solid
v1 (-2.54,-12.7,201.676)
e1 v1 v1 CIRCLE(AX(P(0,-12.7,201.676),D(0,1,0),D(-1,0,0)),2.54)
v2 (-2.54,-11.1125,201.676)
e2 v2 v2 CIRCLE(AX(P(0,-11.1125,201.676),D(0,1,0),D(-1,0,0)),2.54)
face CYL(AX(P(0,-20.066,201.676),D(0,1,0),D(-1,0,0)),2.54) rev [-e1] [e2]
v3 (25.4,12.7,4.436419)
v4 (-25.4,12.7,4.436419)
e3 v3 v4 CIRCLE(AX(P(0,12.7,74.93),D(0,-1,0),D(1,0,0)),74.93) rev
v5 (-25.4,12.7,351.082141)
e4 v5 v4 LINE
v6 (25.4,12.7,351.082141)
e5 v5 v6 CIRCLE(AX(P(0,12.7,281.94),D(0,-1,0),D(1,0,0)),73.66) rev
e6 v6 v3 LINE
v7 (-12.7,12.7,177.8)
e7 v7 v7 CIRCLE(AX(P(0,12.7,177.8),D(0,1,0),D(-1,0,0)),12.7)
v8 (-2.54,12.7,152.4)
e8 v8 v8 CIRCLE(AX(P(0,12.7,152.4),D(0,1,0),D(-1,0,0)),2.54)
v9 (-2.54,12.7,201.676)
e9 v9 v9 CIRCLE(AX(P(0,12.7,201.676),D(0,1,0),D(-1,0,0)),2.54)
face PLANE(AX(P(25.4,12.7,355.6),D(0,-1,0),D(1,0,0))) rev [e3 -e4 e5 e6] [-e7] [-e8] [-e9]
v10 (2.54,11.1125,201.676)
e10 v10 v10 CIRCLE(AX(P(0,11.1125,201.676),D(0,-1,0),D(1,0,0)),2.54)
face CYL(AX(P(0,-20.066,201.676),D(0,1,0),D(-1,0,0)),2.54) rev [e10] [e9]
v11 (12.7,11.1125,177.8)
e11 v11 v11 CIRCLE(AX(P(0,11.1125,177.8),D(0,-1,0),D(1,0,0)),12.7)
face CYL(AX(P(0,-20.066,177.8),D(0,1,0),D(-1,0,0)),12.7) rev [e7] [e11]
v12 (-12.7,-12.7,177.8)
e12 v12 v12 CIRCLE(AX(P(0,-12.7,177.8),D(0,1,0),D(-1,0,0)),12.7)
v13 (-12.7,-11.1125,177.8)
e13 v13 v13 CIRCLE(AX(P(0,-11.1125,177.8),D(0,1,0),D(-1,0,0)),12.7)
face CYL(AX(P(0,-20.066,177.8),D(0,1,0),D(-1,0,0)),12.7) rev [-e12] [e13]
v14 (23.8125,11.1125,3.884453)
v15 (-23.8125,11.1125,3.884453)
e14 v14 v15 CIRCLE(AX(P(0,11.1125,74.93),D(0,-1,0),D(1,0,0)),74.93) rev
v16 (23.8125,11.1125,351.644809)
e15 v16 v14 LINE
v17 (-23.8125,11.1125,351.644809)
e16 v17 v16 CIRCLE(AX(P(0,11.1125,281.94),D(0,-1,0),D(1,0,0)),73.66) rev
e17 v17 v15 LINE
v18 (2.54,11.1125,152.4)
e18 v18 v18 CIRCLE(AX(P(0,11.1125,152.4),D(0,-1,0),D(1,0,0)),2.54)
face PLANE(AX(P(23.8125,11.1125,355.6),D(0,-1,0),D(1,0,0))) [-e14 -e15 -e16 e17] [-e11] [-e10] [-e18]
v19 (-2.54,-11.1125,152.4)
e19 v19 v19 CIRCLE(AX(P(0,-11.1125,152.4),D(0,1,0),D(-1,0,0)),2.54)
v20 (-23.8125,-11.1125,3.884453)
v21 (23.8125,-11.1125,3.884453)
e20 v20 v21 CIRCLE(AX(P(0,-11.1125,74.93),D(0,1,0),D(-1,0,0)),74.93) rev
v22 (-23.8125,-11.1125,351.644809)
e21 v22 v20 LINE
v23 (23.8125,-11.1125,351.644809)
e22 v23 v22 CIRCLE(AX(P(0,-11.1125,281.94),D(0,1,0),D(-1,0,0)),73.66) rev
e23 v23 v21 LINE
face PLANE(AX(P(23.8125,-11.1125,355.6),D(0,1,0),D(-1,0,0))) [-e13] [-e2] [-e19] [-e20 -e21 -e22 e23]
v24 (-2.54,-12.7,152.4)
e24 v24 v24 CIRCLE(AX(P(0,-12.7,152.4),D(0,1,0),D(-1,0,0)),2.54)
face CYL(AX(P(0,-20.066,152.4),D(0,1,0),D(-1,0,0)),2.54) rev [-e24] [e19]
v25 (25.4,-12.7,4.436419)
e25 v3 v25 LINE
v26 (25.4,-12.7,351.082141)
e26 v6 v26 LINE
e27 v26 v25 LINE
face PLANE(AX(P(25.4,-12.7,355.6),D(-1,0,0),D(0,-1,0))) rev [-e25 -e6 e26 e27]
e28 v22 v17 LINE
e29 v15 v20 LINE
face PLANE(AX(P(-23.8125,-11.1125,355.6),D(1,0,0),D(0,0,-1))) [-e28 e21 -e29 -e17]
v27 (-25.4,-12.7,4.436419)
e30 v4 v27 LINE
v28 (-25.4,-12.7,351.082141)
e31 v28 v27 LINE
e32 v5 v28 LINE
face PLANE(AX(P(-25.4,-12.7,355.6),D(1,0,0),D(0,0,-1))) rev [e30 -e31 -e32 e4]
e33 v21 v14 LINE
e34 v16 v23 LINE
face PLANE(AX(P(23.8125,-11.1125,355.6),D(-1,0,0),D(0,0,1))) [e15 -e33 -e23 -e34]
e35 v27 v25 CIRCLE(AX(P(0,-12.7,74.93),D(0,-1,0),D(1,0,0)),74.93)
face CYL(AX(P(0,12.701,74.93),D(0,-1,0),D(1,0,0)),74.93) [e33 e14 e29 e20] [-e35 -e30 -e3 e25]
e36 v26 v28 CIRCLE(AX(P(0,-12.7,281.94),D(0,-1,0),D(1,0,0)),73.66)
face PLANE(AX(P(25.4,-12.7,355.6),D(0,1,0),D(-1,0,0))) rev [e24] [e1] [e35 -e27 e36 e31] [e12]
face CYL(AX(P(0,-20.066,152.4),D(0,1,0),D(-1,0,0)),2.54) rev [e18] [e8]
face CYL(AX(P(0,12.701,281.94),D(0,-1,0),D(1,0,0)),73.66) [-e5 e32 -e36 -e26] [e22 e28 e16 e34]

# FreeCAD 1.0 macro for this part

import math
import FreeCAD as App
import Part
import Sketcher
from FreeCAD import Vector
Q = App.Units.Quantity


def add_polygon(sketch, points):
    """Adds a closed chain of lines whose ends are joined by coincident constraints."""
    first, n = sketch.GeometryCount, len(points)
    for a, b in zip(points, points[1:] + points[:1]):
        sketch.addGeometry(Part.LineSegment(App.Vector(*a, 0), App.Vector(*b, 0)), False)
    for i in range(n):
        sketch.addConstraint(Sketcher.Constraint("Coincident", first + i, 2, first + (i + 1) % n, 1))

doc = App.newDocument("Part")
body = doc.addObject("PartDesign::Body", "Body")

# Sketch on XY plane
sketch1 = body.newObject("Sketcher::SketchObject", "Sketch")
sketch1.AttachmentSupport = (doc.getObject("XY_Plane"), [""])
sketch1.MapMode = "FlatFace"
add_polygon(sketch1, [(-25, 13), (-25, -13), (25, -13), (25, 13)])  # lines 0-3
add_polygon(sketch1, [(24, -11), (-24, -11), (-24, 11), (24, 11)])  # lines 4-7
sketch1.addConstraint(Sketcher.Constraint("Vertical", 0))
sketch1.addConstraint(Sketcher.Constraint("Horizontal", 1))
sketch1.addConstraint(Sketcher.Constraint("Vertical", 2))
sketch1.addConstraint(Sketcher.Constraint("Horizontal", 3))
sketch1.addConstraint(Sketcher.Constraint("Horizontal", 4))
sketch1.addConstraint(Sketcher.Constraint("Vertical", 5))
sketch1.addConstraint(Sketcher.Constraint("Horizontal", 6))
sketch1.addConstraint(Sketcher.Constraint("Vertical", 7))
sketch1.addConstraint(Sketcher.Constraint("Symmetric", 0, 2, 2, 2, -1, 1))
sketch1.addConstraint(Sketcher.Constraint("Symmetric", 4, 2, 6, 2, -1, 1))
sketch1.addConstraint(Sketcher.Constraint("DistanceX", 1, 1, 1, 2, Q("2 in")))
sketch1.addConstraint(Sketcher.Constraint("DistanceY", 0, 2, 0, 1, Q("1 in")))
sketch1.addConstraint(Sketcher.Constraint("DistanceX", 4, 2, 4, 1, Q("1.875 in")))
sketch1.addConstraint(Sketcher.Constraint("DistanceY", 5, 1, 5, 2, Q("0.875 in")))
pad1 = body.newObject("PartDesign::Pad", "Pad")
pad1.Profile = sketch1
pad1.Length = Q("14 in")

# Sketch on XZ plane
sketch2 = body.newObject("Sketcher::SketchObject", "Sketch001")
sketch2.AttachmentSupport = (doc.getObject("XZ_Plane"), [""])
sketch2.MapMode = "FlatFace"
sketch2.AttachmentOffset = App.Placement(Vector(0, 0, -0.5 * 25.4), App.Rotation())
sketch2.addGeometry(Part.Circle(Vector(0, 177.8, 0), Vector(0, 0, 1), 12.7), False)
sketch2.addGeometry(Part.Circle(Vector(0, 152.4, 0), Vector(0, 0, 1), 2.5), False)
sketch2.addGeometry(Part.Circle(Vector(0, 201.7, 0), Vector(0, 0, 1), 2.5), False)
sketch2.addConstraint(Sketcher.Constraint("Equal", 1, 2))
sketch2.addConstraint(Sketcher.Constraint("PointOnObject", 0, 3, -2))
sketch2.addConstraint(Sketcher.Constraint("PointOnObject", 1, 3, -2))
sketch2.addConstraint(Sketcher.Constraint("PointOnObject", 2, 3, -2))
sketch2.addConstraint(Sketcher.Constraint("Diameter", 0, Q("1 in")))
sketch2.addConstraint(Sketcher.Constraint("Diameter", 1, Q("0.2 in")))
sketch2.addConstraint(Sketcher.Constraint("DistanceY", -1, 1, 0, 3, Q("7 in")))
sketch2.addConstraint(Sketcher.Constraint("DistanceY", -1, 1, 1, 3, Q("6 in")))
sketch2.addConstraint(Sketcher.Constraint("DistanceY", -1, 1, 2, 3, Q("7.94 in")))
pocket1 = body.newObject("PartDesign::Pocket", "Pocket")
pocket1.Profile = sketch2
pocket1.Length = Q("1.29 in")
pocket1.Reversed = True

# Sketch on XZ plane
sketch3 = body.newObject("Sketcher::SketchObject", "Sketch002")
sketch3.AttachmentSupport = (doc.getObject("XZ_Plane"), [""])
sketch3.MapMode = "FlatFace"
sketch3.AttachmentOffset = App.Placement(Vector(0, 0, 0.5 * 25.4), App.Rotation())
sketch3.addGeometry(Part.ArcOfCircle(Part.Circle(Vector(0, 281.9, 0), Vector(0, 0, 1), 73.7), math.radians(70), math.radians(90)), False)
sketch3.addGeometry(Part.LineSegment(Vector(25.4, 351.1, 0), Vector(25.4, 355.6, 0)), False)
sketch3.addGeometry(Part.LineSegment(Vector(25.4, 355.6, 0), Vector(0, 355.6, 0)), False)
sketch3.addConstraint(Sketcher.Constraint("Coincident", 0, 1, 1, 1))
sketch3.addConstraint(Sketcher.Constraint("Coincident", 1, 2, 2, 1))
sketch3.addConstraint(Sketcher.Constraint("Tangent", 2, 2, 0, 2))
sketch3.addConstraint(Sketcher.Constraint("Vertical", 1))
sketch3.addConstraint(Sketcher.Constraint("Horizontal", 2))
sketch3.addConstraint(Sketcher.Constraint("PointOnObject", 0, 3, -2))
sketch3.addConstraint(Sketcher.Constraint("Radius", 0, Q("2.9 in")))
sketch3.addConstraint(Sketcher.Constraint("DistanceX", 2, 2, 2, 1, Q("1 in")))
sketch3.addConstraint(Sketcher.Constraint("DistanceY", -1, 1, 1, 2, Q("14 in")))
pocket2 = body.newObject("PartDesign::Pocket", "Pocket001")
pocket2.Profile = sketch3
pocket2.Length = Q("1 in")

# Sketch on XZ plane
sketch4 = body.newObject("Sketcher::SketchObject", "Sketch003")
sketch4.AttachmentSupport = (doc.getObject("XZ_Plane"), [""])
sketch4.MapMode = "FlatFace"
sketch4.AttachmentOffset = App.Placement(Vector(0, 0, 0.5 * 25.4), App.Rotation())
sketch4.addGeometry(Part.LineSegment(Vector(-25.4, 355.6, 0), Vector(-25.4, 351.1, 0)), False)
sketch4.addGeometry(Part.ArcOfCircle(Part.Circle(Vector(0, 281.9, 0), Vector(0, 0, 1), 73.7), math.radians(90), math.radians(110)), False)
sketch4.addGeometry(Part.LineSegment(Vector(0, 355.6, 0), Vector(-25.4, 355.6, 0)), False)
sketch4.addConstraint(Sketcher.Constraint("Coincident", 0, 2, 1, 2))
sketch4.addConstraint(Sketcher.Constraint("Tangent", 1, 1, 2, 1))
sketch4.addConstraint(Sketcher.Constraint("Coincident", 2, 2, 0, 1))
sketch4.addConstraint(Sketcher.Constraint("Vertical", 0))
sketch4.addConstraint(Sketcher.Constraint("Horizontal", 2))
sketch4.addConstraint(Sketcher.Constraint("PointOnObject", 1, 3, -2))
sketch4.addConstraint(Sketcher.Constraint("Radius", 1, Q("2.9 in")))
sketch4.addConstraint(Sketcher.Constraint("DistanceX", 2, 2, 2, 1, Q("1 in")))
sketch4.addConstraint(Sketcher.Constraint("DistanceY", -1, 1, 1, 1, Q("14 in")))
pocket3 = body.newObject("PartDesign::Pocket", "Pocket002")
pocket3.Profile = sketch4
pocket3.Length = Q("1 in")

# Sketch on XZ plane
sketch5 = body.newObject("Sketcher::SketchObject", "Sketch004")
sketch5.AttachmentSupport = (doc.getObject("XZ_Plane"), [""])
sketch5.MapMode = "FlatFace"
sketch5.AttachmentOffset = App.Placement(Vector(0, 0, 0.5 * 25.4), App.Rotation())
sketch5.addGeometry(Part.ArcOfCircle(Part.Circle(Vector(0, 74.9, 0), Vector(0, 0, 1), 74.9), math.radians(-90), math.radians(-70.19)), False)
sketch5.addGeometry(Part.LineSegment(Vector(0, 0, 0), Vector(25.4, 0, 0)), False)
sketch5.addGeometry(Part.LineSegment(Vector(25.4, 0, 0), Vector(25.4, 4.4, 0)), False)
sketch5.addConstraint(Sketcher.Constraint("Tangent", 0, 1, 1, 1))
sketch5.addConstraint(Sketcher.Constraint("Coincident", 1, 2, 2, 1))
sketch5.addConstraint(Sketcher.Constraint("Coincident", 2, 2, 0, 2))
sketch5.addConstraint(Sketcher.Constraint("Horizontal", 1))
sketch5.addConstraint(Sketcher.Constraint("Vertical", 2))
sketch5.addConstraint(Sketcher.Constraint("Coincident", 0, 1, -1, 1))
sketch5.addConstraint(Sketcher.Constraint("DistanceX", 1, 1, 1, 2, Q("1 in")))
sketch5.addConstraint(Sketcher.Constraint("Radius", 0, Q("2.95 in")))
pocket4 = body.newObject("PartDesign::Pocket", "Pocket003")
pocket4.Profile = sketch5
pocket4.Length = Q("1 in")

# Sketch on XZ plane
sketch6 = body.newObject("Sketcher::SketchObject", "Sketch005")
sketch6.AttachmentSupport = (doc.getObject("XZ_Plane"), [""])
sketch6.MapMode = "FlatFace"
sketch6.AttachmentOffset = App.Placement(Vector(0, 0, 0.5 * 25.4), App.Rotation())
sketch6.addGeometry(Part.LineSegment(Vector(-25.4, 4.4, 0), Vector(-25.4, 0, 0)), False)
sketch6.addGeometry(Part.LineSegment(Vector(-25.4, 0, 0), Vector(0, 0, 0)), False)
sketch6.addGeometry(Part.ArcOfCircle(Part.Circle(Vector(0, 74.9, 0), Vector(0, 0, 1), 74.9), math.radians(-109.81), math.radians(-90)), False)
sketch6.addConstraint(Sketcher.Constraint("Coincident", 0, 2, 1, 1))
sketch6.addConstraint(Sketcher.Constraint("Tangent", 1, 2, 2, 2))
sketch6.addConstraint(Sketcher.Constraint("Coincident", 2, 1, 0, 1))
sketch6.addConstraint(Sketcher.Constraint("Vertical", 0))
sketch6.addConstraint(Sketcher.Constraint("Horizontal", 1))
sketch6.addConstraint(Sketcher.Constraint("Coincident", 1, 2, -1, 1))
sketch6.addConstraint(Sketcher.Constraint("DistanceX", 1, 1, 1, 2, Q("1 in")))
sketch6.addConstraint(Sketcher.Constraint("Radius", 2, Q("2.95 in")))
pocket5 = body.newObject("PartDesign::Pocket", "Pocket004")
pocket5.Profile = sketch6
pocket5.Length = Q("1 in")

doc.recompute()
